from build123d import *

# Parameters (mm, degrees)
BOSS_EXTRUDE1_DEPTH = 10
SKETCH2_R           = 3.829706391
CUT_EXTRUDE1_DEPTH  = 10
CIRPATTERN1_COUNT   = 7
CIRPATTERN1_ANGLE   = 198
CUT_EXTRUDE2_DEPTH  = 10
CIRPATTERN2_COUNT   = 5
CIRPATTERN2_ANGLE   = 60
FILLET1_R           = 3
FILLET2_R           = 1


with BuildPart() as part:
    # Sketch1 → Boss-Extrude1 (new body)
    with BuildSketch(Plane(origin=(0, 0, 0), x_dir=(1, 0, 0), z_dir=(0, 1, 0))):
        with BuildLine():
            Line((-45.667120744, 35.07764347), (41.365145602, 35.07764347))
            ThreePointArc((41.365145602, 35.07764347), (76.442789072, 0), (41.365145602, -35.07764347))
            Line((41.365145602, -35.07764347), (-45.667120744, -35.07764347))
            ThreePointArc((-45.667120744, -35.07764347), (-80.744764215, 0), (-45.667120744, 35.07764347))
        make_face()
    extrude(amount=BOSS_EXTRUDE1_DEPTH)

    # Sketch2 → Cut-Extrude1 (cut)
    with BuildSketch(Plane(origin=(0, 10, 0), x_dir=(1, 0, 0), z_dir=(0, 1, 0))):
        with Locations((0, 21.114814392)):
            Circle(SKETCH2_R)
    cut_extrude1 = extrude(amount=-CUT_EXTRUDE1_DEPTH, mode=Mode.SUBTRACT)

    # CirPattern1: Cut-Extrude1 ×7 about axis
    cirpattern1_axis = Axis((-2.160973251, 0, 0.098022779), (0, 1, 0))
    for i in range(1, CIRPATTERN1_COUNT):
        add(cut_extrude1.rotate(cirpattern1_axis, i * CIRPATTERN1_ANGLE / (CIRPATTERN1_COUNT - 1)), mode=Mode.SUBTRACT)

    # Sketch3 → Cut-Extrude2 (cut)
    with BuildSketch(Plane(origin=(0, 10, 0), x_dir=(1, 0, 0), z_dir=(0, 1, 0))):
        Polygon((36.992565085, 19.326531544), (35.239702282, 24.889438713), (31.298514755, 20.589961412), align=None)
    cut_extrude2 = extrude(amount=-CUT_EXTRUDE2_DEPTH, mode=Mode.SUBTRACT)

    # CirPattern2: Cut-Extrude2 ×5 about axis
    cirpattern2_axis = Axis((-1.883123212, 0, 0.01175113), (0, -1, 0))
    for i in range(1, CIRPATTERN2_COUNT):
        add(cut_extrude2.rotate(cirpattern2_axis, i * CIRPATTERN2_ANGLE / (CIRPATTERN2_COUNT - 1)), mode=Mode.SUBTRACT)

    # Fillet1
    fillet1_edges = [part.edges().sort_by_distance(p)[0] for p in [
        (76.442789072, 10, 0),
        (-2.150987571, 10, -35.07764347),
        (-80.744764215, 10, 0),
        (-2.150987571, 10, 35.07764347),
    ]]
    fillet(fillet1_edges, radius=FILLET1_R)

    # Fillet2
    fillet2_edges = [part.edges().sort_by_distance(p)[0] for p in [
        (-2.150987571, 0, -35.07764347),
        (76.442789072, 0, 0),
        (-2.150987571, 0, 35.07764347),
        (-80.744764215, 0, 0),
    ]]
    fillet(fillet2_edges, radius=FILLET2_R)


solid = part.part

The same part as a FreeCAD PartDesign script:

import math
import FreeCAD as App
import Part
import Sketcher
Q = App.Units.Quantity


def edges_at(feature, points):
    """Names of the edges that pass closest to the given points."""
    edges = feature.Shape.Edges
    near = lambda p: min(range(len(edges)), key=lambda i: edges[i].distToShape(Part.Vertex(*p))[0])
    return sorted({f"Edge{near(p) + 1}" for p in points})


def add_polygon(sketch, points):
    """Adds a closed chain of lines whose ends are joined by coincident constraints."""
    first, n = sketch.GeometryCount, len(points)
    for a, b in zip(points, points[1:] + points[:1]):
        sketch.addGeometry(Part.LineSegment(App.Vector(*a, 0), App.Vector(*b, 0)), False)
    for i in range(n):
        sketch.addConstraint(Sketcher.Constraint("Coincident", first + i, 2, first + (i + 1) % n, 1))

doc = App.newDocument("Part")
body = doc.addObject("PartDesign::Body", "Body")

# Sketch on XZ plane
sketch1 = doc.addObject("Sketcher::SketchObject", "Sketch")
body.addObject(sketch1)
sketch1.AttachmentSupport = (doc.XZ_Plane, [""])
sketch1.MapMode = "FlatFace"
sketch1.addGeometry([
    Part.LineSegment(App.Vector(41, -35, 0), App.Vector(-46, -35, 0)),
    Part.ArcOfCircle(Part.Circle(App.Vector(-46, 0, 0), App.Vector(0, 0, 1), 35), math.radians(90), math.radians(270)),
    Part.LineSegment(App.Vector(-46, 35, 0), App.Vector(41, 35, 0)),
    Part.ArcOfCircle(Part.Circle(App.Vector(41, 0, 0), App.Vector(0, 0, 1), 35), math.radians(-90), math.radians(90)),
], False)
sketch1.addConstraint([
    Sketcher.Constraint("Tangent", 0, 2, 1, 2),
    Sketcher.Constraint("Tangent", 1, 1, 2, 1),
    Sketcher.Constraint("Tangent", 2, 2, 3, 2),
    Sketcher.Constraint("Tangent", 3, 1, 0, 1),
    Sketcher.Constraint("Horizontal", 0),
    Sketcher.Constraint("Horizontal", 2),
    Sketcher.Constraint("PointOnObject", 1, 3, -1),
    Sketcher.Constraint("Radius", 1, Q("35.077643 mm")),
    Sketcher.Constraint("DistanceX", 0, 2, 0, 1, Q("87.032266 mm")),
    Sketcher.Constraint("DistanceX", 1, 3, -1, 1, Q("45.667121 mm")),
])
pad1 = doc.addObject("PartDesign::Pad", "Pad")
body.addObject(pad1)
pad1.Profile = sketch1
pad1.Length = 10
pad1.Reversed = True

# Sketch on XZ plane
sketch2 = doc.addObject("Sketcher::SketchObject", "Sketch001")
body.addObject(sketch2)
sketch2.AttachmentSupport = (doc.XZ_Plane, [""])
sketch2.MapMode = "FlatFace"
sketch2.AttachmentOffset = App.Placement(App.Vector(0, 0, -10), App.Rotation())
sketch2.addGeometry(Part.Circle(App.Vector(0, -21.1, 0), App.Vector(0, 0, 1), 3.8), False)
sketch2.addConstraint([
    Sketcher.Constraint("PointOnObject", 0, 3, -2),
    Sketcher.Constraint("Diameter", 0, Q("7.659413 mm")),
    Sketcher.Constraint("DistanceY", 0, 3, -1, 1, Q("21.114814 mm")),
])
pocket1 = doc.addObject("PartDesign::Pocket", "Pocket")
body.addObject(pocket1)
pocket1.Profile = sketch2
pocket1.Length = 10
pocket1.Reversed = True
doc.recompute()

datumline = doc.addObject("PartDesign::Line", "DatumLine")
body.addObject(datumline)
datumline.Placement = App.Placement(App.Vector(-2.160973, 0, 0.098023), App.Rotation(App.Vector(0, 0, 1), App.Vector(0, 1, 0)))
polarpattern = doc.addObject("PartDesign::PolarPattern", "PolarPattern")
body.addObject(polarpattern)
polarpattern.Originals = [pocket1]
polarpattern.Axis = (datumline, [""])
polarpattern.Angle = 198
polarpattern.Occurrences = 7
body.Tip = polarpattern

# Sketch on XZ plane
sketch3 = doc.addObject("Sketcher::SketchObject", "Sketch002")
body.addObject(sketch3)
sketch3.AttachmentSupport = (doc.XZ_Plane, [""])
sketch3.MapMode = "FlatFace"
sketch3.AttachmentOffset = App.Placement(App.Vector(0, 0, -10), App.Rotation())
add_polygon(sketch3, [(37, -19), (35, -25), (31, -21)])  # lines 0-2
sketch3.addConstraint([
    Sketcher.Constraint("Equal", 0, 1),
    Sketcher.Constraint("Equal", 1, 2),
    Sketcher.Constraint("DistanceY", 0, 2, -1, 1, Q("24.889439 mm")),
    Sketcher.Constraint("DistanceY", 1, 2, -1, 1, Q("20.589961 mm")),
    Sketcher.Constraint("DistanceY", 2, 2, -1, 1, Q("19.326532 mm")),
    Sketcher.Constraint("DistanceX", -1, 1, 0, 2, Q("35.239702 mm")),
])
pocket2 = doc.addObject("PartDesign::Pocket", "Pocket001")
body.addObject(pocket2)
pocket2.Profile = sketch3
pocket2.Length = 10
pocket2.Reversed = True
doc.recompute()

datumline2 = doc.addObject("PartDesign::Line", "DatumLine001")
body.addObject(datumline2)
datumline2.Placement = App.Placement(App.Vector(-1.883123, 0, 0.011751), App.Rotation(App.Vector(0, 0, 1), App.Vector(0, -1, 0)))
polarpattern2 = doc.addObject("PartDesign::PolarPattern", "PolarPattern001")
body.addObject(polarpattern2)
polarpattern2.Originals = [pocket2]
polarpattern2.Axis = (datumline2, [""])
polarpattern2.Angle = 60
polarpattern2.Occurrences = 5
body.Tip = polarpattern2
doc.recompute()

fillet = doc.addObject("PartDesign::Fillet", "Fillet")
body.addObject(fillet)
fillet.Base = (polarpattern2, edges_at(polarpattern2, [
    (76.443, 10, 0),
    (-2.151, 10, -35.078),
    (-80.745, 10, 0),
    (-2.151, 10, 35.078),
]))
fillet.Radius = 3
doc.recompute()

fillet2 = doc.addObject("PartDesign::Fillet", "Fillet001")
body.addObject(fillet2)
fillet2.Base = (fillet, edges_at(fillet, [
    (-2.151, 0, -35.078),
    (76.443, 0, 0),
    (-2.151, 0, 35.078),
    (-80.745, 0, 0),
]))
fillet2.Radius = 1

doc.recompute()
